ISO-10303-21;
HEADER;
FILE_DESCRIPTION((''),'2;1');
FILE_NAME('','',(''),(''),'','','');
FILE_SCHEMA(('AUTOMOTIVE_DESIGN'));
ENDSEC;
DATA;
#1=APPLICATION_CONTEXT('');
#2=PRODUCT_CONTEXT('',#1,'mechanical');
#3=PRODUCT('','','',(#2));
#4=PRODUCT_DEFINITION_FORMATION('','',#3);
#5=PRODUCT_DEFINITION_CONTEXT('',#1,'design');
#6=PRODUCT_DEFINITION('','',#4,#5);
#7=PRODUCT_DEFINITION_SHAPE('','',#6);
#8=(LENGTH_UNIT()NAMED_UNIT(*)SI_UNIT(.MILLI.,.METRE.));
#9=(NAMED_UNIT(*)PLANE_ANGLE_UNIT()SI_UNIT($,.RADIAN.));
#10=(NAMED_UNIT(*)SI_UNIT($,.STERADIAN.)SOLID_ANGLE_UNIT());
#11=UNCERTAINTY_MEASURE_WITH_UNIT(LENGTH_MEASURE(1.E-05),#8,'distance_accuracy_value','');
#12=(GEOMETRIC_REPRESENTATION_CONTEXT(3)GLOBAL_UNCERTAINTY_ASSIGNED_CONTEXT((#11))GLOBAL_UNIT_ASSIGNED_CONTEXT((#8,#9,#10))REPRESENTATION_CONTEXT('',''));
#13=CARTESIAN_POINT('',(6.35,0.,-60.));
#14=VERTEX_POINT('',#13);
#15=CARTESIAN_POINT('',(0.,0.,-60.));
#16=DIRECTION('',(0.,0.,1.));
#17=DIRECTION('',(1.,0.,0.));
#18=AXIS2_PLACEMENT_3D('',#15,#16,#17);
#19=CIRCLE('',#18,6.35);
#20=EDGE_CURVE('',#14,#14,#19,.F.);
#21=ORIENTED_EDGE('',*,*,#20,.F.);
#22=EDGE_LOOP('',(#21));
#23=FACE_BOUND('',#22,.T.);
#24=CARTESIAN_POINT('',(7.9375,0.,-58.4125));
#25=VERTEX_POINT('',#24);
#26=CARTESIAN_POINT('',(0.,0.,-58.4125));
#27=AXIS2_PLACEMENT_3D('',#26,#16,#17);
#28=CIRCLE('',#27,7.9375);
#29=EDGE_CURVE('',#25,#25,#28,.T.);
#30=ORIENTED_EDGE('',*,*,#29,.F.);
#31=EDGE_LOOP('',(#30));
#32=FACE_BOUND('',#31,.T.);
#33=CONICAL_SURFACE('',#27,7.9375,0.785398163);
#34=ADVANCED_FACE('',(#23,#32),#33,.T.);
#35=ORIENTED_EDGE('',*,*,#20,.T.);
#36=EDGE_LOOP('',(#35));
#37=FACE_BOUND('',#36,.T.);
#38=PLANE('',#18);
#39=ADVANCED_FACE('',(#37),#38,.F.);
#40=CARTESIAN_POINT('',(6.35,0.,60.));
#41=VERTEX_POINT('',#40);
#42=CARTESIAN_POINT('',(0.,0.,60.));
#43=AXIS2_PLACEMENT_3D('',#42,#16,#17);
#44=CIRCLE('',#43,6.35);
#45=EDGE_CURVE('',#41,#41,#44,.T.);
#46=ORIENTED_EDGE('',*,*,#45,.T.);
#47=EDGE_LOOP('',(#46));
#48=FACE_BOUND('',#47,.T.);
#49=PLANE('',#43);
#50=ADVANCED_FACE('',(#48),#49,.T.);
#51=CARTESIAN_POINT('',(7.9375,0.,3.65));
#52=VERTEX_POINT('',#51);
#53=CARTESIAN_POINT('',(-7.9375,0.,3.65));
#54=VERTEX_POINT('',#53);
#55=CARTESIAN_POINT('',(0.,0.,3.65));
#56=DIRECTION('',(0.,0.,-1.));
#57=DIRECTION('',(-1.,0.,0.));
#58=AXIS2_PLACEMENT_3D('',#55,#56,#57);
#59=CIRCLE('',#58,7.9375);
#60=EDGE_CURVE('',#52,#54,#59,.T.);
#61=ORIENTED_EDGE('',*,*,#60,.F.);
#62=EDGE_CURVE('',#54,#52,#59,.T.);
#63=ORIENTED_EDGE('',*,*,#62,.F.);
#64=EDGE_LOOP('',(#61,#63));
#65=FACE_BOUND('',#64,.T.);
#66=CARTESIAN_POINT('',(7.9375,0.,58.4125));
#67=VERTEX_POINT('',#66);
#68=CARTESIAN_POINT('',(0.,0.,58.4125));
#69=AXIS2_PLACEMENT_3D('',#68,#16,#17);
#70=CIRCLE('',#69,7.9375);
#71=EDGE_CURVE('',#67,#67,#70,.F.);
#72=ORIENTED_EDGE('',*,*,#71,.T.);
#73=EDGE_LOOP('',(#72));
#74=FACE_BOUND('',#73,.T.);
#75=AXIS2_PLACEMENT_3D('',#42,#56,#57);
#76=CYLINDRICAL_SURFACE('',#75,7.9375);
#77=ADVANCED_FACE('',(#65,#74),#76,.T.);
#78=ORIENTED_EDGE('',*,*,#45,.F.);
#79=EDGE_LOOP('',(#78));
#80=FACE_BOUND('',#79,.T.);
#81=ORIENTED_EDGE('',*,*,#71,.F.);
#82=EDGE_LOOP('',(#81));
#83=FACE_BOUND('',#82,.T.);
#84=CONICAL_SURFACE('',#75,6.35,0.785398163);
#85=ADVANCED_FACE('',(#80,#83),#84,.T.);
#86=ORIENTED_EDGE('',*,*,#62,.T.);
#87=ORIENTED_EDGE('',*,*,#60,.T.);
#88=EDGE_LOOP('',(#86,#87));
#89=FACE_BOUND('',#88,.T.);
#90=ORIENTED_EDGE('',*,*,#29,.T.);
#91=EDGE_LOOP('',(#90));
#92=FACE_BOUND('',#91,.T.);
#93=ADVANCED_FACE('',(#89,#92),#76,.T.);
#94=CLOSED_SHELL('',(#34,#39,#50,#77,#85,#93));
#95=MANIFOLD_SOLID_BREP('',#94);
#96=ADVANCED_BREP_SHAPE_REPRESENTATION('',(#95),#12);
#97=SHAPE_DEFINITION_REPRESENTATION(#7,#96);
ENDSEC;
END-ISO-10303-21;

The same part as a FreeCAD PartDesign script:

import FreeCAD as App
import Part
import Sketcher
Q = App.Units.Quantity


def edges_at(feature, points):
    """Names of the edges that pass closest to the given points."""
    edges = feature.Shape.Edges
    near = lambda p: min(range(len(edges)), key=lambda i: edges[i].distToShape(Part.Vertex(*p))[0])
    return sorted({f"Edge{near(p) + 1}" for p in points})

doc = App.newDocument("Part")
body = doc.addObject("PartDesign::Body", "Body")

sketch1 = body.newObject("Sketcher::SketchObject", "Sketch")
sketch1.AttachmentSupport = (doc.getObject("XY_Plane"), [""])
sketch1.MapMode = "FlatFace"
sketch1.addGeometry(Part.Circle(App.Vector(0, 0, 0), App.Vector(0, 0, 1), 8), False)
sketch1.addConstraint([
    Sketcher.Constraint("Coincident", 0, 3, -1, 1),
    Sketcher.Constraint("Diameter", 0, Q("0.625 in")),
])
pad1 = body.newObject("PartDesign::Pad", "Pad")
pad1.Profile = sketch1
pad1.Length = 120
pad1.Midplane = True
doc.recompute()

chamfer = body.newObject("PartDesign::Chamfer", "Chamfer")
chamfer.Base = (pad1, edges_at(pad1, [(-7.938, 0, -60), (-7.938, 0, 60)]))
chamfer.Size = Q("0.0625 in")

doc.recompute()
